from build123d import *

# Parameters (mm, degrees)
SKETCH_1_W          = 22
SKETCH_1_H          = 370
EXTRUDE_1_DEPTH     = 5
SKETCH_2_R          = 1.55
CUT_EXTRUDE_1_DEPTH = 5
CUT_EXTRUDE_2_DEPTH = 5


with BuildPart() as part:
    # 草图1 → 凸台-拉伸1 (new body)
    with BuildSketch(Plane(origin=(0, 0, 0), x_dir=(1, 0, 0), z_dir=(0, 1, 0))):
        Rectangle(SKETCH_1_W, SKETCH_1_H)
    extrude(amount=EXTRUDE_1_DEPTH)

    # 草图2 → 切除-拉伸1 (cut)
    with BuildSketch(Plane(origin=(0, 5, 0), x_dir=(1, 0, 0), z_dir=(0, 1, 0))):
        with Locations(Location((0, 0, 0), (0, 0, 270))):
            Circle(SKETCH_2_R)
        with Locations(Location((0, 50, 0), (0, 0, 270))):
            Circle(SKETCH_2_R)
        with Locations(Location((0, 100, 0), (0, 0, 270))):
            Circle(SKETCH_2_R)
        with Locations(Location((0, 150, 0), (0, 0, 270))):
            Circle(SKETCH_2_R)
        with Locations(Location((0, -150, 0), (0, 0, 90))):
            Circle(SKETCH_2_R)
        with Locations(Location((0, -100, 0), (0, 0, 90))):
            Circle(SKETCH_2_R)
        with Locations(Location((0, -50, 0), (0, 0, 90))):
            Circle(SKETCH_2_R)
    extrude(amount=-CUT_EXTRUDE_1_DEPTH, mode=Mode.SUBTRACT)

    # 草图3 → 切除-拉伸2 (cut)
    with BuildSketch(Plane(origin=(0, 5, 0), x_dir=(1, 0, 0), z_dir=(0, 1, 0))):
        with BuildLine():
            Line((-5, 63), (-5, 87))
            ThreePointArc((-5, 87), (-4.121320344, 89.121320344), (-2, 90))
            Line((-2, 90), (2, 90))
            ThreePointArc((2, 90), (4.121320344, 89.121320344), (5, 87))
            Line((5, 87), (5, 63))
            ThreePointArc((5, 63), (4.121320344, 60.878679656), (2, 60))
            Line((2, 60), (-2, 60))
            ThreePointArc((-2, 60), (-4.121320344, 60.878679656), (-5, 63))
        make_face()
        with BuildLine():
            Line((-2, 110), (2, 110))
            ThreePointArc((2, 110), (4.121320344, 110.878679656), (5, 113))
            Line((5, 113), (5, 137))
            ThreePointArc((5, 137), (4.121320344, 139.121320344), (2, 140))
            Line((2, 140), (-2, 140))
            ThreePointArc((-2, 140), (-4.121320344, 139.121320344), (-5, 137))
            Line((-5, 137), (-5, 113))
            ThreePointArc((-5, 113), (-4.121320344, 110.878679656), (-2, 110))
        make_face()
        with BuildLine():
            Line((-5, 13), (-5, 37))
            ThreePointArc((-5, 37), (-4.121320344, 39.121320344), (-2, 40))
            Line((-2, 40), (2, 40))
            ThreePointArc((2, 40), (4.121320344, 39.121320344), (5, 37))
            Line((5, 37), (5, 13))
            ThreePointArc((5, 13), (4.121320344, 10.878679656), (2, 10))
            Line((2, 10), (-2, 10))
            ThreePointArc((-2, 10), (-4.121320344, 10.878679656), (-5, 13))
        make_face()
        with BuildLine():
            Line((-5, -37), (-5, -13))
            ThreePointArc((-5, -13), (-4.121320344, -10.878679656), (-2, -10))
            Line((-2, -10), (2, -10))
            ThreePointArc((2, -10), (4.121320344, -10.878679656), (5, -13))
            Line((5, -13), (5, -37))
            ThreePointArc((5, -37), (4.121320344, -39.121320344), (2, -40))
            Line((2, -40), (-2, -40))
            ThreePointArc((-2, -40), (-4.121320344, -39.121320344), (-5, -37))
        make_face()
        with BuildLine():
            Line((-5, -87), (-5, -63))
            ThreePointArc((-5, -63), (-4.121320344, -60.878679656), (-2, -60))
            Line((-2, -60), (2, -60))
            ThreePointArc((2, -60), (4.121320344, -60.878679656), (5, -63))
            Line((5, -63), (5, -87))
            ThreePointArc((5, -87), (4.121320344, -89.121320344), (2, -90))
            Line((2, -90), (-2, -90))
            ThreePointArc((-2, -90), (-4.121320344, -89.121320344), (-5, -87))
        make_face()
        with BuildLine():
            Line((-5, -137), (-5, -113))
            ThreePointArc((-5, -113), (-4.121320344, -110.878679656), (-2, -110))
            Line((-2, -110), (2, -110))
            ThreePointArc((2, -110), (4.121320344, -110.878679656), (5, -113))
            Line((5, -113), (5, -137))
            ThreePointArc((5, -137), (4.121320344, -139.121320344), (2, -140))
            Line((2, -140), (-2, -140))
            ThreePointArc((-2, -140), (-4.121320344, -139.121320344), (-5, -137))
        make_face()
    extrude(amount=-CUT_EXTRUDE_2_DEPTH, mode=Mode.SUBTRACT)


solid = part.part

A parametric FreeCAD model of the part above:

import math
import FreeCAD as App
import Part
import Sketcher

doc = App.newDocument("Part")
body = doc.addObject("PartDesign::Body", "Body")

# Sketch on XZ plane
sketch1 = body.newObject("Sketcher::SketchObject", "Sketch")
sketch1.AttachmentSupport = (doc.getObject("XZ_Plane"), [""])
sketch1.MapMode = "FlatFace"
sketch1.addGeometry([
    Part.LineSegment(App.Vector(-11, -185, 0), App.Vector(-11, 185, 0)),
    Part.LineSegment(App.Vector(-11, 185, 0), App.Vector(11, 185, 0)),
    Part.LineSegment(App.Vector(11, 185, 0), App.Vector(11, -185, 0)),
    Part.LineSegment(App.Vector(11, -185, 0), App.Vector(-11, -185, 0)),
], False)
sketch1.addConstraint([
    Sketcher.Constraint("Coincident", 0, 2, 1, 1),
    Sketcher.Constraint("Coincident", 1, 2, 2, 1),
    Sketcher.Constraint("Coincident", 2, 2, 3, 1),
    Sketcher.Constraint("Coincident", 3, 2, 0, 1),
    Sketcher.Constraint("Vertical", 0),
    Sketcher.Constraint("Horizontal", 1),
    Sketcher.Constraint("Vertical", 2),
    Sketcher.Constraint("Horizontal", 3),
    Sketcher.Constraint("Symmetric", 0, 2, 2, 2, -1, 1),
    Sketcher.Constraint("DistanceX", 1, 1, 1, 2, 22.0),
    Sketcher.Constraint("DistanceY", 0, 1, 0, 2, 370.0),
])
pad1 = body.newObject("PartDesign::Pad", "Pad")
pad1.Profile = sketch1
pad1.Length = 5
pad1.Reversed = True

# Sketch on XZ plane
sketch2 = body.newObject("Sketcher::SketchObject", "Sketch001")
sketch2.AttachmentSupport = (doc.getObject("XZ_Plane"), [""])
sketch2.MapMode = "FlatFace"
sketch2.AttachmentOffset = App.Placement(App.Vector(0, 0, -5), App.Rotation())
sketch2.addGeometry([
    Part.Circle(App.Vector(0, 0, 0), App.Vector(0, 0, 1), 1.55),  # 0
    Part.Circle(App.Vector(0, -50, 0), App.Vector(0, 0, 1), 1.55),  # 1
    Part.Circle(App.Vector(0, -100, 0), App.Vector(0, 0, 1), 1.55),  # 2
    Part.Circle(App.Vector(0, -150, 0), App.Vector(0, 0, 1), 1.55),  # 3
    Part.Circle(App.Vector(0, 150, 0), App.Vector(0, 0, 1), 1.55),  # 4
    Part.Circle(App.Vector(0, 100, 0), App.Vector(0, 0, 1), 1.55),  # 5
    Part.Circle(App.Vector(0, 50, 0), App.Vector(0, 0, 1), 1.55),  # 6
], False)
sketch2.addConstraint([
    Sketcher.Constraint("Coincident", 0, 3, -1, 1),
    Sketcher.Constraint("Equal", 0, 1),
    Sketcher.Constraint("Equal", 1, 2),
    Sketcher.Constraint("Equal", 2, 3),
    Sketcher.Constraint("Equal", 3, 4),
    Sketcher.Constraint("Equal", 4, 5),
    Sketcher.Constraint("Equal", 5, 6),
    Sketcher.Constraint("Symmetric", 3, 3, 4, 3, -1, 1),
    Sketcher.Constraint("Symmetric", 2, 3, 5, 3, -1, 1),
    Sketcher.Constraint("Symmetric", 1, 3, 6, 3, -1, 1),
    Sketcher.Constraint("PointOnObject", 1, 3, -2),
    Sketcher.Constraint("PointOnObject", 2, 3, -2),
    Sketcher.Constraint("PointOnObject", 3, 3, -2),
    Sketcher.Constraint("Diameter", 0, 3.1),
    Sketcher.Constraint("DistanceY", 1, 3, -1, 1, 50.0),
    Sketcher.Constraint("DistanceY", 2, 3, -1, 1, 100.0),
    Sketcher.Constraint("DistanceY", 3, 3, -1, 1, 150.0),
])
pocket1 = body.newObject("PartDesign::Pocket", "Pocket")
pocket1.Profile = sketch2
pocket1.Length = 5
pocket1.Reversed = True

# Sketch on XZ plane
sketch3 = body.newObject("Sketcher::SketchObject", "Sketch002")
sketch3.AttachmentSupport = (doc.getObject("XZ_Plane"), [""])
sketch3.MapMode = "FlatFace"
sketch3.AttachmentOffset = App.Placement(App.Vector(0, 0, -5), App.Rotation())
sketch3.addGeometry([
    Part.LineSegment(App.Vector(-5, -87, 0), App.Vector(-5, -63, 0)),  # 0
    Part.ArcOfCircle(Part.Circle(App.Vector(-2, -63, 0), App.Vector(0, 0, 1), 3), math.radians(90), math.radians(180)),  # 1
    Part.LineSegment(App.Vector(-2, -60, 0), App.Vector(2, -60, 0)),  # 2
    Part.ArcOfCircle(Part.Circle(App.Vector(2, -63, 0), App.Vector(0, 0, 1), 3), math.radians(0), math.radians(90)),  # 3
    Part.LineSegment(App.Vector(5, -63, 0), App.Vector(5, -87, 0)),  # 4
    Part.ArcOfCircle(Part.Circle(App.Vector(2, -87, 0), App.Vector(0, 0, 1), 3), math.radians(-90), math.radians(0)),  # 5
    Part.LineSegment(App.Vector(2, -90, 0), App.Vector(-2, -90, 0)),  # 6
    Part.ArcOfCircle(Part.Circle(App.Vector(-2, -87, 0), App.Vector(0, 0, 1), 3), math.radians(180), math.radians(270)),  # 7
    Part.LineSegment(App.Vector(-2, -110, 0), App.Vector(2, -110, 0)),  # 8
    Part.ArcOfCircle(Part.Circle(App.Vector(2, -113, 0), App.Vector(0, 0, 1), 3), math.radians(0), math.radians(90)),  # 9
    Part.LineSegment(App.Vector(5, -113, 0), App.Vector(5, -137, 0)),  # 10
    Part.ArcOfCircle(Part.Circle(App.Vector(2, -137, 0), App.Vector(0, 0, 1), 3), math.radians(-90), math.radians(0)),  # 11
    Part.LineSegment(App.Vector(2, -140, 0), App.Vector(-2, -140, 0)),  # 12
    Part.ArcOfCircle(Part.Circle(App.Vector(-2, -137, 0), App.Vector(0, 0, 1), 3), math.radians(180), math.radians(270)),  # 13
    Part.LineSegment(App.Vector(-5, -137, 0), App.Vector(-5, -113, 0)),  # 14
    Part.ArcOfCircle(Part.Circle(App.Vector(-2, -113, 0), App.Vector(0, 0, 1), 3), math.radians(90), math.radians(180)),  # 15
    Part.LineSegment(App.Vector(-5, -37, 0), App.Vector(-5, -13, 0)),  # 16
    Part.ArcOfCircle(Part.Circle(App.Vector(-2, -13, 0), App.Vector(0, 0, 1), 3), math.radians(90), math.radians(180)),  # 17
    Part.LineSegment(App.Vector(-2, -10, 0), App.Vector(2, -10, 0)),  # 18
    Part.ArcOfCircle(Part.Circle(App.Vector(2, -13, 0), App.Vector(0, 0, 1), 3), math.radians(0), math.radians(90)),  # 19
    Part.LineSegment(App.Vector(5, -13, 0), App.Vector(5, -37, 0)),  # 20
    Part.ArcOfCircle(Part.Circle(App.Vector(2, -37, 0), App.Vector(0, 0, 1), 3), math.radians(-90), math.radians(0)),  # 21
    Part.LineSegment(App.Vector(2, -40, 0), App.Vector(-2, -40, 0)),  # 22
    Part.ArcOfCircle(Part.Circle(App.Vector(-2, -37, 0), App.Vector(0, 0, 1), 3), math.radians(180), math.radians(270)),  # 23
    Part.LineSegment(App.Vector(-5, 13, 0), App.Vector(-5, 37, 0)),  # 24
    Part.ArcOfCircle(Part.Circle(App.Vector(-2, 37, 0), App.Vector(0, 0, 1), 3), math.radians(90), math.radians(180)),  # 25
    Part.LineSegment(App.Vector(-2, 40, 0), App.Vector(2, 40, 0)),  # 26
    Part.ArcOfCircle(Part.Circle(App.Vector(2, 37, 0), App.Vector(0, 0, 1), 3), math.radians(0), math.radians(90)),  # 27
    Part.LineSegment(App.Vector(5, 37, 0), App.Vector(5, 13, 0)),  # 28
    Part.ArcOfCircle(Part.Circle(App.Vector(2, 13, 0), App.Vector(0, 0, 1), 3), math.radians(-90), math.radians(0)),  # 29
    Part.LineSegment(App.Vector(2, 10, 0), App.Vector(-2, 10, 0)),  # 30
    Part.ArcOfCircle(Part.Circle(App.Vector(-2, 13, 0), App.Vector(0, 0, 1), 3), math.radians(180), math.radians(270)),  # 31
    Part.LineSegment(App.Vector(-5, 63, 0), App.Vector(-5, 87, 0)),  # 32
    Part.ArcOfCircle(Part.Circle(App.Vector(-2, 87, 0), App.Vector(0, 0, 1), 3), math.radians(90), math.radians(180)),  # 33
    Part.LineSegment(App.Vector(-2, 90, 0), App.Vector(2, 90, 0)),  # 34
    Part.ArcOfCircle(Part.Circle(App.Vector(2, 87, 0), App.Vector(0, 0, 1), 3), math.radians(0), math.radians(90)),  # 35
    Part.LineSegment(App.Vector(5, 87, 0), App.Vector(5, 63, 0)),  # 36
    Part.ArcOfCircle(Part.Circle(App.Vector(2, 63, 0), App.Vector(0, 0, 1), 3), math.radians(-90), math.radians(0)),  # 37
    Part.LineSegment(App.Vector(2, 60, 0), App.Vector(-2, 60, 0)),  # 38
    Part.ArcOfCircle(Part.Circle(App.Vector(-2, 63, 0), App.Vector(0, 0, 1), 3), math.radians(180), math.radians(270)),  # 39
    Part.LineSegment(App.Vector(-5, 113, 0), App.Vector(-5, 137, 0)),  # 40
    Part.ArcOfCircle(Part.Circle(App.Vector(-2, 137, 0), App.Vector(0, 0, 1), 3), math.radians(90), math.radians(180)),  # 41
    Part.LineSegment(App.Vector(-2, 140, 0), App.Vector(2, 140, 0)),  # 42
    Part.ArcOfCircle(Part.Circle(App.Vector(2, 137, 0), App.Vector(0, 0, 1), 3), math.radians(0), math.radians(90)),  # 43
    Part.LineSegment(App.Vector(5, 137, 0), App.Vector(5, 113, 0)),  # 44
    Part.ArcOfCircle(Part.Circle(App.Vector(2, 113, 0), App.Vector(0, 0, 1), 3), math.radians(-90), math.radians(0)),  # 45
    Part.LineSegment(App.Vector(2, 110, 0), App.Vector(-2, 110, 0)),  # 46
    Part.ArcOfCircle(Part.Circle(App.Vector(-2, 113, 0), App.Vector(0, 0, 1), 3), math.radians(180), math.radians(270)),  # 47
], False)
sketch3.addConstraint([
    Sketcher.Constraint("Tangent", 0, 2, 1, 2),
    Sketcher.Constraint("Tangent", 1, 1, 2, 1),
    Sketcher.Constraint("Tangent", 2, 2, 3, 2),
    Sketcher.Constraint("Tangent", 3, 1, 4, 1),
    Sketcher.Constraint("Tangent", 4, 2, 5, 2),
    Sketcher.Constraint("Tangent", 5, 1, 6, 1),
    Sketcher.Constraint("Tangent", 6, 2, 7, 2),
    Sketcher.Constraint("Tangent", 7, 1, 0, 1),
    Sketcher.Constraint("Tangent", 8, 2, 9, 2),
    Sketcher.Constraint("Tangent", 9, 1, 10, 1),
    Sketcher.Constraint("Tangent", 10, 2, 11, 2),
    Sketcher.Constraint("Tangent", 11, 1, 12, 1),
    Sketcher.Constraint("Tangent", 12, 2, 13, 2),
    Sketcher.Constraint("Tangent", 13, 1, 14, 1),
    Sketcher.Constraint("Tangent", 14, 2, 15, 2),
    Sketcher.Constraint("Tangent", 15, 1, 8, 1),
    Sketcher.Constraint("Tangent", 16, 2, 17, 2),
    Sketcher.Constraint("Tangent", 17, 1, 18, 1),
    Sketcher.Constraint("Tangent", 18, 2, 19, 2),
    Sketcher.Constraint("Tangent", 19, 1, 20, 1),
    Sketcher.Constraint("Tangent", 20, 2, 21, 2),
    Sketcher.Constraint("Tangent", 21, 1, 22, 1),
    Sketcher.Constraint("Tangent", 22, 2, 23, 2),
    Sketcher.Constraint("Tangent", 23, 1, 16, 1),
    Sketcher.Constraint("Tangent", 24, 2, 25, 2),
    Sketcher.Constraint("Tangent", 25, 1, 26, 1),
    Sketcher.Constraint("Tangent", 26, 2, 27, 2),
    Sketcher.Constraint("Tangent", 27, 1, 28, 1),
    Sketcher.Constraint("Tangent", 28, 2, 29, 2),
    Sketcher.Constraint("Tangent", 29, 1, 30, 1),
    Sketcher.Constraint("Tangent", 30, 2, 31, 2),
    Sketcher.Constraint("Tangent", 31, 1, 24, 1),
    Sketcher.Constraint("Tangent", 32, 2, 33, 2),
    Sketcher.Constraint("Tangent", 33, 1, 34, 1),
    Sketcher.Constraint("Tangent", 34, 2, 35, 2),
    Sketcher.Constraint("Tangent", 35, 1, 36, 1),
    Sketcher.Constraint("Tangent", 36, 2, 37, 2),
    Sketcher.Constraint("Tangent", 37, 1, 38, 1),
    Sketcher.Constraint("Tangent", 38, 2, 39, 2),
    Sketcher.Constraint("Tangent", 39, 1, 32, 1),
    Sketcher.Constraint("Tangent", 40, 2, 41, 2),
    Sketcher.Constraint("Tangent", 41, 1, 42, 1),
    Sketcher.Constraint("Tangent", 42, 2, 43, 2),
    Sketcher.Constraint("Tangent", 43, 1, 44, 1),
    Sketcher.Constraint("Tangent", 44, 2, 45, 2),
    Sketcher.Constraint("Tangent", 45, 1, 46, 1),
    Sketcher.Constraint("Tangent", 46, 2, 47, 2),
    Sketcher.Constraint("Tangent", 47, 1, 40, 1),
    Sketcher.Constraint("Vertical", 0),
    Sketcher.Constraint("Horizontal", 2),
    Sketcher.Constraint("Vertical", 4),
    Sketcher.Constraint("Horizontal", 6),
    Sketcher.Constraint("Horizontal", 8),
    Sketcher.Constraint("Vertical", 10),
    Sketcher.Constraint("Horizontal", 12),
    Sketcher.Constraint("Vertical", 14),
    Sketcher.Constraint("Vertical", 16),
    Sketcher.Constraint("Horizontal", 18),
    Sketcher.Constraint("Vertical", 20),
    Sketcher.Constraint("Horizontal", 22),
    Sketcher.Constraint("Vertical", 24),
    Sketcher.Constraint("Horizontal", 26),
    Sketcher.Constraint("Vertical", 28),
    Sketcher.Constraint("Horizontal", 30),
    Sketcher.Constraint("Vertical", 32),
    Sketcher.Constraint("Horizontal", 34),
    Sketcher.Constraint("Vertical", 36),
    Sketcher.Constraint("Horizontal", 38),
    Sketcher.Constraint("Vertical", 40),
    Sketcher.Constraint("Horizontal", 42),
    Sketcher.Constraint("Vertical", 44),
    Sketcher.Constraint("Horizontal", 46),
    Sketcher.Constraint("Equal", 1, 3),
    Sketcher.Constraint("Equal", 3, 5),
    Sketcher.Constraint("Equal", 5, 7),
    Sketcher.Constraint("Equal", 7, 9),
    Sketcher.Constraint("Equal", 9, 11),
    Sketcher.Constraint("Equal", 11, 13),
    Sketcher.Constraint("Equal", 13, 15),
    Sketcher.Constraint("Equal", 15, 17),
    Sketcher.Constraint("Equal", 17, 19),
    Sketcher.Constraint("Equal", 19, 21),
    Sketcher.Constraint("Equal", 21, 23),
    Sketcher.Constraint("Equal", 23, 25),
    Sketcher.Constraint("Equal", 25, 27),
    Sketcher.Constraint("Equal", 27, 29),
    Sketcher.Constraint("Equal", 29, 31),
    Sketcher.Constraint("Equal", 31, 33),
    Sketcher.Constraint("Equal", 33, 35),
    Sketcher.Constraint("Equal", 35, 37),
    Sketcher.Constraint("Equal", 37, 39),
    Sketcher.Constraint("Equal", 39, 41),
    Sketcher.Constraint("Equal", 41, 43),
    Sketcher.Constraint("Equal", 43, 45),
    Sketcher.Constraint("Equal", 45, 47),
    Sketcher.Constraint("Symmetric", 21, 3, 25, 3, -1, 1),
    Sketcher.Constraint("Symmetric", 17, 3, 29, 3, -1, 1),
    Sketcher.Constraint("Symmetric", 5, 3, 33, 3, -1, 1),
    Sketcher.Constraint("Symmetric", 1, 3, 37, 3, -1, 1),
    Sketcher.Constraint("Symmetric", 11, 3, 41, 3, -1, 1),
    Sketcher.Constraint("Symmetric", 15, 3, 45, 3, -1, 1),
    Sketcher.Constraint("Vertical", 5, 3, 9, 3),
    Sketcher.Constraint("Vertical", 7, 3, 13, 3),
    Sketcher.Constraint("Vertical", 15, 3, 17, 3),
    Sketcher.Constraint("Vertical", 11, 3, 19, 3),
    Sketcher.Constraint("Vertical", 23, 3, 25, 3),
    Sketcher.Constraint("Equal", 4, 10),
    Sketcher.Constraint("Equal", 14, 16),
    Sketcher.Constraint("Radius", 1, 3.0),
    Sketcher.Constraint("DistanceX", 2, 1, 2, 2, 4.0),
    Sketcher.Constraint("DistanceY", 0, 1, 0, 2, 24.0),
    Sketcher.Constraint("DistanceY", 1, 3, -1, 1, 63.0),
    Sketcher.Constraint("DistanceY", 9, 3, -1, 1, 113.0),
    Sketcher.Constraint("DistanceY", 17, 3, -1, 1, 13.0),
])
pocket2 = body.newObject("PartDesign::Pocket", "Pocket001")
pocket2.Profile = sketch3
pocket2.Length = 5
pocket2.Reversed = True

doc.recompute()
